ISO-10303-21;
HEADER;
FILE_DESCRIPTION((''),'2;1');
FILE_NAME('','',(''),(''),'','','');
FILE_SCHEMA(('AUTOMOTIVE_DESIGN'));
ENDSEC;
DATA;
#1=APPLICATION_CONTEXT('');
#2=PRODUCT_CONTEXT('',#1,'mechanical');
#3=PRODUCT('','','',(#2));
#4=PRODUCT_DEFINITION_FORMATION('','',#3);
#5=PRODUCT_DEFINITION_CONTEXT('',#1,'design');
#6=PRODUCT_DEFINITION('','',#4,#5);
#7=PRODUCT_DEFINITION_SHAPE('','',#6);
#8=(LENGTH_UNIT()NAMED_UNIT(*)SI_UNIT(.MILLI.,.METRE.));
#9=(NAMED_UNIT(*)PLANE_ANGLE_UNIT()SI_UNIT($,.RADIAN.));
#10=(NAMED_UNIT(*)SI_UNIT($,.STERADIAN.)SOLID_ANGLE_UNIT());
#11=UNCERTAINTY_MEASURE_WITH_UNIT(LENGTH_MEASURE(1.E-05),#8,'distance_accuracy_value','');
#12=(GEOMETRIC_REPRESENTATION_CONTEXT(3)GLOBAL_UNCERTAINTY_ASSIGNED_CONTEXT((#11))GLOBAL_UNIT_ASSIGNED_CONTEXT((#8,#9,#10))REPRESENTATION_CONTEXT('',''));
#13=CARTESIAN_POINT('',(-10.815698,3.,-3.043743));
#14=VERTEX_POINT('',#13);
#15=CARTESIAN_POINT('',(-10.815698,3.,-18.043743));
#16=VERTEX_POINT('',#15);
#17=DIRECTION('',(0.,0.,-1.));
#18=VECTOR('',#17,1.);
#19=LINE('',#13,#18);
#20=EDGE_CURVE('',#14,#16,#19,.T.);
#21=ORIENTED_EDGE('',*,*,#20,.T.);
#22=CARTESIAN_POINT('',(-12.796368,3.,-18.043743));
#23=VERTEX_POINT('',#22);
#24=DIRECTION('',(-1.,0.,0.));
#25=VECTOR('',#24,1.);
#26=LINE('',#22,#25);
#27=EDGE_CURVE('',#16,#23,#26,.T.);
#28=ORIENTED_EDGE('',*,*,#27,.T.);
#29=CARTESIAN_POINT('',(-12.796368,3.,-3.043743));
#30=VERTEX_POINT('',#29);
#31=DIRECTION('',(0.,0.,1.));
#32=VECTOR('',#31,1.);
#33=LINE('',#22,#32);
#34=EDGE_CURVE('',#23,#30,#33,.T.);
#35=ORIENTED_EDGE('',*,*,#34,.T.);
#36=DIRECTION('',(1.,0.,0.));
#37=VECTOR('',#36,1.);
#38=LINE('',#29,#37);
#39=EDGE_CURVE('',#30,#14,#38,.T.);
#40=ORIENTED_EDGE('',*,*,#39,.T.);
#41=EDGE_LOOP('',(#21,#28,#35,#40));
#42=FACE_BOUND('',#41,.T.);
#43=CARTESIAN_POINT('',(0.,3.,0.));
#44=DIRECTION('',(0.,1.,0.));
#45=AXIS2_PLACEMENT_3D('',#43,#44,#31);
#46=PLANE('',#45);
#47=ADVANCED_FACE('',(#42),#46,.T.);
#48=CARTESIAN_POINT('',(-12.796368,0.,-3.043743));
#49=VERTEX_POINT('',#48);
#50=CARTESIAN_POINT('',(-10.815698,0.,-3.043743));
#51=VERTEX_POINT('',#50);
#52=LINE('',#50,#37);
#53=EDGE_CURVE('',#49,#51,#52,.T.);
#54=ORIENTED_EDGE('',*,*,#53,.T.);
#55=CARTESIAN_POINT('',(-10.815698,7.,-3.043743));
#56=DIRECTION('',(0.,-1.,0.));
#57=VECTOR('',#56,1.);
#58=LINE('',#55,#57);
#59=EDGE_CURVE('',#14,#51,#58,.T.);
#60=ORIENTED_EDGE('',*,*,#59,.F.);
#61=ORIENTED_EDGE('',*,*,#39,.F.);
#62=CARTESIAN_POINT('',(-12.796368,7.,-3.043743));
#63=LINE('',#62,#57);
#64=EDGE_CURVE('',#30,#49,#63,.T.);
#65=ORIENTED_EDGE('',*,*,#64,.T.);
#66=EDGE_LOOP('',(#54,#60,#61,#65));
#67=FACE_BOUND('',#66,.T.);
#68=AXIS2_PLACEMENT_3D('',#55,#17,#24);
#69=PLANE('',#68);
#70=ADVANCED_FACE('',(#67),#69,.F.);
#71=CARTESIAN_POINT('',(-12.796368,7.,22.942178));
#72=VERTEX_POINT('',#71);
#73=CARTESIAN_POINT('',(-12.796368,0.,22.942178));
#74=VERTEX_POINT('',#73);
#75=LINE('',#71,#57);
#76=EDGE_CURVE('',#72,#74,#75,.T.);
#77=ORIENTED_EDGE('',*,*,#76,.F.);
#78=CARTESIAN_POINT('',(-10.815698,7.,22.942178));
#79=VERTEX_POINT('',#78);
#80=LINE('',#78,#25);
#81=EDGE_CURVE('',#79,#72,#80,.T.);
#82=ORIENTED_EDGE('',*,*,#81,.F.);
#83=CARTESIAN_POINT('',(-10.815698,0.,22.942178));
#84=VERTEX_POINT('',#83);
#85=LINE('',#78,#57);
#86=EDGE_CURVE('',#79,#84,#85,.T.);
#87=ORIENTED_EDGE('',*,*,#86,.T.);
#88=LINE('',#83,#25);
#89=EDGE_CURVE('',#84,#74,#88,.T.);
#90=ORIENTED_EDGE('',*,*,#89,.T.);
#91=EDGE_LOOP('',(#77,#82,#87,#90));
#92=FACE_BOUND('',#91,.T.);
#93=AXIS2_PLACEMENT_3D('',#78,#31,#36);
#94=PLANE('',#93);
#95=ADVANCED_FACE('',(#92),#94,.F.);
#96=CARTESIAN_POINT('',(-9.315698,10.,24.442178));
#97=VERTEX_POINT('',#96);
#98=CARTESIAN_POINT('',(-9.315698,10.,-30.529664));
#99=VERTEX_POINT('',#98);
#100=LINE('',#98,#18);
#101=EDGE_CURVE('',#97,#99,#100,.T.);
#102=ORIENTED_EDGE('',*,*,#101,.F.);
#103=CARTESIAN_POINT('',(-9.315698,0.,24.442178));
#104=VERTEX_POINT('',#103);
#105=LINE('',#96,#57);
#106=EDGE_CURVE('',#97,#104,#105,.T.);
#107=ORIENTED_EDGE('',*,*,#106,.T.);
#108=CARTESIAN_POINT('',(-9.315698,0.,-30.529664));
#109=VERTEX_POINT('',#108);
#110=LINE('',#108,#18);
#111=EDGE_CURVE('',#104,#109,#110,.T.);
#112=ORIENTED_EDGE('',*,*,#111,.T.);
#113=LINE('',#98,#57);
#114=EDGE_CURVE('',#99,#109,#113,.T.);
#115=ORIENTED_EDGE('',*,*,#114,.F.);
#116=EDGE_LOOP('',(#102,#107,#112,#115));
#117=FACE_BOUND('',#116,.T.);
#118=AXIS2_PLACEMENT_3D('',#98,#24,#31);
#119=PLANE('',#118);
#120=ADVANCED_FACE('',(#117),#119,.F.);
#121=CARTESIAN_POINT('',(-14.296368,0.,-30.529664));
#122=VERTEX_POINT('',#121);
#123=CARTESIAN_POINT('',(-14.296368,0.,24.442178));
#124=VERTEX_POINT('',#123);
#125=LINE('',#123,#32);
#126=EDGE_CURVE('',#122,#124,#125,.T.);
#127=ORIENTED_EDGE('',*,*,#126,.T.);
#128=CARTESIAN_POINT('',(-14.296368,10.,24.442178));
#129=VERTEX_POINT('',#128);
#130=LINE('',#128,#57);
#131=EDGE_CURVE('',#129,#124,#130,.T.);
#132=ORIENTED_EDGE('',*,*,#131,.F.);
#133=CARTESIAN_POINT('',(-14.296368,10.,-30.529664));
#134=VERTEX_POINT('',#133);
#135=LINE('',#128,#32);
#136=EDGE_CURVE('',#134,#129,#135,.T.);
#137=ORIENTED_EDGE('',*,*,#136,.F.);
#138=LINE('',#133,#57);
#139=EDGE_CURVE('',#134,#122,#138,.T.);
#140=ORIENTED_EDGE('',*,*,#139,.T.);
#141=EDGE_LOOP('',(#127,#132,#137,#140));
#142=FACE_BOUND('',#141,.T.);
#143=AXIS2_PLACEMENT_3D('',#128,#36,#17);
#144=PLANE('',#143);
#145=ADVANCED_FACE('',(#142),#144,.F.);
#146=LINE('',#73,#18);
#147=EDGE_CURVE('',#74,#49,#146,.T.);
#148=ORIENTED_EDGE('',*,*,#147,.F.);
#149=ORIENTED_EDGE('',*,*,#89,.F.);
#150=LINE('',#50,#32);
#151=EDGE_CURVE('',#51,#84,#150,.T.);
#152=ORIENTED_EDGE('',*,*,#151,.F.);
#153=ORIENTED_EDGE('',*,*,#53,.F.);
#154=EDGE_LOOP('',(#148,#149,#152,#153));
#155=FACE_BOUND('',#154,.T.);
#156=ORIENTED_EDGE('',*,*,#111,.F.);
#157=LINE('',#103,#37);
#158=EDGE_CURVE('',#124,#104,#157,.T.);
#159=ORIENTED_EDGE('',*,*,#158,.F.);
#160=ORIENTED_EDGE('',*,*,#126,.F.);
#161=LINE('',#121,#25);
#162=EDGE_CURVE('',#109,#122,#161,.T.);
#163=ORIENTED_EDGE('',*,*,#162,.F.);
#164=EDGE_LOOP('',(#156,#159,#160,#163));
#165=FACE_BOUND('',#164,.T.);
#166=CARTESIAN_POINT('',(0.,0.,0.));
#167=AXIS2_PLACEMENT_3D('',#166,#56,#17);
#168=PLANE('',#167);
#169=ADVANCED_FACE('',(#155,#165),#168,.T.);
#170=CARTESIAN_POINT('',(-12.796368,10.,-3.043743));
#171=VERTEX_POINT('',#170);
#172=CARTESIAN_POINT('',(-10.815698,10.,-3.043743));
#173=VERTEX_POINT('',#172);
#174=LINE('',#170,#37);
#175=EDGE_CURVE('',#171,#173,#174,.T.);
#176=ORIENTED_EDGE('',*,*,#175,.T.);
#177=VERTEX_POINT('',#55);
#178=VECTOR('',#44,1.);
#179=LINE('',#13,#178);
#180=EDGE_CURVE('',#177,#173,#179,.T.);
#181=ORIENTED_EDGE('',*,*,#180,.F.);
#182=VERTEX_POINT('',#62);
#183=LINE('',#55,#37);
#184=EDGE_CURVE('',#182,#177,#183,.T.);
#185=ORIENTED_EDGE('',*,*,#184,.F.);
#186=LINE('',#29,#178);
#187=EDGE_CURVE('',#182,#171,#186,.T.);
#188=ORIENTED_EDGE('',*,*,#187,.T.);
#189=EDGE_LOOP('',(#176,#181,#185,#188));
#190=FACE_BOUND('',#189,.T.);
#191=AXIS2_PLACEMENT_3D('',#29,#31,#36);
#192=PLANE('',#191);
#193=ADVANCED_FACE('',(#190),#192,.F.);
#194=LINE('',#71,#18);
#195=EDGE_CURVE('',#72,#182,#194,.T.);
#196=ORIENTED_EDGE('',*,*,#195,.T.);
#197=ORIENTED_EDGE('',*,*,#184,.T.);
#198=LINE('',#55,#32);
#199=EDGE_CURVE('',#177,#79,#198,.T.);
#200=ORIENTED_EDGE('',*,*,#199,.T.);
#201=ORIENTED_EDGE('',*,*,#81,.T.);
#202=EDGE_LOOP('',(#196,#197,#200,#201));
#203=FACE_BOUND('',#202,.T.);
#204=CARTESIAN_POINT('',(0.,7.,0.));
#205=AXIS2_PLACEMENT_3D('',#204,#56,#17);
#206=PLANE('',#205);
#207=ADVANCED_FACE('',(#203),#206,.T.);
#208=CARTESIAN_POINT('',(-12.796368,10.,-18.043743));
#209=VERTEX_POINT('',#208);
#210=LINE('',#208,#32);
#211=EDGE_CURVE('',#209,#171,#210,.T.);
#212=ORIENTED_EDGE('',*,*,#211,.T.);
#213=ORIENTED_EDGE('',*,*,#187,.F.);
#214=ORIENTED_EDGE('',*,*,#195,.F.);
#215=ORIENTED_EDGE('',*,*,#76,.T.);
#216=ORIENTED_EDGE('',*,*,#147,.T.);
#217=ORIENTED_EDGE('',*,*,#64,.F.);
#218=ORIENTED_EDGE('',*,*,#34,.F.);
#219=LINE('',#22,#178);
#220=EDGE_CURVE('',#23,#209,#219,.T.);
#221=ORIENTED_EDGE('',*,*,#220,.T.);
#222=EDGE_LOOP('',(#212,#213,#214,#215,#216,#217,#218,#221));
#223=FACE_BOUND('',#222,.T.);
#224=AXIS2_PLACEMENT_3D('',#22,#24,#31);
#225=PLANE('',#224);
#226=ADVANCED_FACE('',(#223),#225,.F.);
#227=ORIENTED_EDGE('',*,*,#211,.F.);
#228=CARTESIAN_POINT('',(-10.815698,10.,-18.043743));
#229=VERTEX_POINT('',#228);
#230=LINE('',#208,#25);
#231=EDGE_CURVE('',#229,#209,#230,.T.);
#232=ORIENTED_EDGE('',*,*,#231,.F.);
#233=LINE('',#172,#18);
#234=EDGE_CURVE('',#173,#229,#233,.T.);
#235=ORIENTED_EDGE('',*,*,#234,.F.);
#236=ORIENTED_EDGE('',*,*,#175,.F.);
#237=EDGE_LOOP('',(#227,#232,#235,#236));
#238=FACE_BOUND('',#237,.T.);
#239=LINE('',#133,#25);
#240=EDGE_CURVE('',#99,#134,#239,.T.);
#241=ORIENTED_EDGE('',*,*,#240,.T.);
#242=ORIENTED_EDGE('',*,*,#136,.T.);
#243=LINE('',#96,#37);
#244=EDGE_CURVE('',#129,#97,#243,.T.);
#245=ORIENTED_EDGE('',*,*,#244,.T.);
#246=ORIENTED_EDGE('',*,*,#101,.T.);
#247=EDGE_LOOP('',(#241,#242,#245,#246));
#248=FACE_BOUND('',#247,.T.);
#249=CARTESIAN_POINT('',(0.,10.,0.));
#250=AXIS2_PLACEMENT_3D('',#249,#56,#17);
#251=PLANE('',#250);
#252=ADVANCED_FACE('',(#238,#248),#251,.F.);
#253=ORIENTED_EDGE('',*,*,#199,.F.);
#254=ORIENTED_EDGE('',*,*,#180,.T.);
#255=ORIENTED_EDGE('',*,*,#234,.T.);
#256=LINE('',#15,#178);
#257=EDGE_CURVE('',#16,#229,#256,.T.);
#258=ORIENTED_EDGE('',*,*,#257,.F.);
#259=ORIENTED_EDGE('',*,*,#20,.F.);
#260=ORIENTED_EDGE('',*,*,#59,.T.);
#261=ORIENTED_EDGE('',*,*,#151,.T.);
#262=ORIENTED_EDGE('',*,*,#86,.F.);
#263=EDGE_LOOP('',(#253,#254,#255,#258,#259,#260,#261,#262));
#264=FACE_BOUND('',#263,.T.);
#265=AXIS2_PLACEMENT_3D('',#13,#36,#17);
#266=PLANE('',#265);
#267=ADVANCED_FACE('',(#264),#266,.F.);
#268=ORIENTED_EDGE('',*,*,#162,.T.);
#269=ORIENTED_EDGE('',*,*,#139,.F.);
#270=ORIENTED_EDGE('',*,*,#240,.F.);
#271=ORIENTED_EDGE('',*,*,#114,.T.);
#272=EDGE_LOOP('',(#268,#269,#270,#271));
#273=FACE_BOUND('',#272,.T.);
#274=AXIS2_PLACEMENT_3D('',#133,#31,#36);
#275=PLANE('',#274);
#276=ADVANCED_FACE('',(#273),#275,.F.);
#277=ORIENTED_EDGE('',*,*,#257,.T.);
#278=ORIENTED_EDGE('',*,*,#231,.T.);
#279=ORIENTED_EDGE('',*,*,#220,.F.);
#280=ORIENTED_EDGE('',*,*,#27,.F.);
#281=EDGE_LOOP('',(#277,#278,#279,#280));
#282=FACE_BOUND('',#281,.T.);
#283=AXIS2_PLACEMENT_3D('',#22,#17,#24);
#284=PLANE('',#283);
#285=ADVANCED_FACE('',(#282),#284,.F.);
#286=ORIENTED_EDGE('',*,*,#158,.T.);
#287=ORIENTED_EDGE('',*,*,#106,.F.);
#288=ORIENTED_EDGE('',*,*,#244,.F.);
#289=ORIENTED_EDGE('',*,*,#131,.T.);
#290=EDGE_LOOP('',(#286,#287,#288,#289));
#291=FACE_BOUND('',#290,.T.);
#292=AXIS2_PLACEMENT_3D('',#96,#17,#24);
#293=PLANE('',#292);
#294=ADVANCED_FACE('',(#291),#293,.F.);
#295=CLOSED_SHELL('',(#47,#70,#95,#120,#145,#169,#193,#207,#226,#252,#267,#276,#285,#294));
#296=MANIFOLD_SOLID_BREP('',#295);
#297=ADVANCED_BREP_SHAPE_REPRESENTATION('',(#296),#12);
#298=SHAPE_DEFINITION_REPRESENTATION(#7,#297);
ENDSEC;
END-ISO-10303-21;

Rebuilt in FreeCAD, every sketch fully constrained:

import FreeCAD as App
import Part
import Sketcher
from FreeCAD import Vector


def add_polygon(sketch, points):
    """Adds a closed chain of lines whose ends are joined by coincident constraints."""
    first, n = sketch.GeometryCount, len(points)
    for a, b in zip(points, points[1:] + points[:1]):
        sketch.addGeometry(Part.LineSegment(App.Vector(*a, 0), App.Vector(*b, 0)), False)
    for i in range(n):
        sketch.addConstraint(Sketcher.Constraint("Coincident", first + i, 2, first + (i + 1) % n, 1))

doc = App.newDocument("Part")
body = doc.addObject("PartDesign::Body", "Body")

sketch1 = body.newObject("Sketcher::SketchObject", "Sketch")
sketch1.AttachmentSupport = (doc.getObject("XZ_Plane"), [""])
sketch1.MapMode = "FlatFace"
add_polygon(sketch1, [(-14.296368, -30.529664), (-14.296368, 24.442178), (-9.315698, 24.442178), (-9.315698, -30.529664)])
sketch1.addConstraint([
    Sketcher.Constraint("Vertical", 0),
    Sketcher.Constraint("Horizontal", 1),
    Sketcher.Constraint("Vertical", 2),
    Sketcher.Constraint("Horizontal", 3),
    Sketcher.Constraint("DistanceX", 1, 1, 1, 2, 4.98067),
    Sketcher.Constraint("DistanceX", 1, 2, -1, 1, 9.315698),
    Sketcher.Constraint("DistanceY", 0, 1, 0, 2, 54.971842),
    Sketcher.Constraint("DistanceY", -1, 1, 0, 2, 24.442178),
])
pad1 = body.newObject("PartDesign::Pad", "Pad")
pad1.Profile = sketch1
pad1.Length = 10
pad1.Reversed = True

sketch2 = body.newObject("Sketcher::SketchObject", "Sketch001")
sketch2.AttachmentSupport = (doc.getObject("XZ_Plane"), [""])
sketch2.MapMode = "FlatFace"
sketch2.AttachmentOffset = App.Placement(Vector(0, 0, -10), App.Rotation())
add_polygon(sketch2, [(-12.796368, -18.043743), (-12.796368, -3.043743), (-10.815698, -3.043743), (-10.815698, -18.043743)])
sketch2.addConstraint([
    Sketcher.Constraint("Vertical", 0),
    Sketcher.Constraint("Horizontal", 1),
    Sketcher.Constraint("Vertical", 2),
    Sketcher.Constraint("Horizontal", 3),
    Sketcher.Constraint("DistanceY", 0, 1, 0, 2, 15.0),
    Sketcher.Constraint("DistanceX", 1, 1, 1, 2, 1.98067),
    Sketcher.Constraint("DistanceX", 1, 2, -1, 1, 10.815698),
    Sketcher.Constraint("DistanceY", 0, 2, -1, 1, 3.043743),
])
pocket1 = body.newObject("PartDesign::Pocket", "Pocket")
pocket1.Profile = sketch2
pocket1.Length = 7
pocket1.Reversed = True

sketch3 = body.newObject("Sketcher::SketchObject", "Sketch002")
sketch3.AttachmentSupport = (doc.getObject("XZ_Plane"), [""])
sketch3.MapMode = "FlatFace"
add_polygon(sketch3, [(-12.796368, 22.942178), (-12.796368, -3.043743), (-10.815698, -3.043743), (-10.815698, 22.942178)])
sketch3.addConstraint([
    Sketcher.Constraint("Vertical", 0),
    Sketcher.Constraint("Horizontal", 1),
    Sketcher.Constraint("Vertical", 2),
    Sketcher.Constraint("Horizontal", 3),
    Sketcher.Constraint("DistanceX", 1, 1, 1, 2, 1.98067),
    Sketcher.Constraint("DistanceY", 0, 2, 0, 1, 25.985921),
    Sketcher.Constraint("DistanceX", 1, 2, -1, 1, 10.815698),
    Sketcher.Constraint("DistanceY", -1, 1, 2, 2, 22.942178),
])
pocket2 = body.newObject("PartDesign::Pocket", "Pocket001")
pocket2.Profile = sketch3
pocket2.Length = 7

doc.recompute()
